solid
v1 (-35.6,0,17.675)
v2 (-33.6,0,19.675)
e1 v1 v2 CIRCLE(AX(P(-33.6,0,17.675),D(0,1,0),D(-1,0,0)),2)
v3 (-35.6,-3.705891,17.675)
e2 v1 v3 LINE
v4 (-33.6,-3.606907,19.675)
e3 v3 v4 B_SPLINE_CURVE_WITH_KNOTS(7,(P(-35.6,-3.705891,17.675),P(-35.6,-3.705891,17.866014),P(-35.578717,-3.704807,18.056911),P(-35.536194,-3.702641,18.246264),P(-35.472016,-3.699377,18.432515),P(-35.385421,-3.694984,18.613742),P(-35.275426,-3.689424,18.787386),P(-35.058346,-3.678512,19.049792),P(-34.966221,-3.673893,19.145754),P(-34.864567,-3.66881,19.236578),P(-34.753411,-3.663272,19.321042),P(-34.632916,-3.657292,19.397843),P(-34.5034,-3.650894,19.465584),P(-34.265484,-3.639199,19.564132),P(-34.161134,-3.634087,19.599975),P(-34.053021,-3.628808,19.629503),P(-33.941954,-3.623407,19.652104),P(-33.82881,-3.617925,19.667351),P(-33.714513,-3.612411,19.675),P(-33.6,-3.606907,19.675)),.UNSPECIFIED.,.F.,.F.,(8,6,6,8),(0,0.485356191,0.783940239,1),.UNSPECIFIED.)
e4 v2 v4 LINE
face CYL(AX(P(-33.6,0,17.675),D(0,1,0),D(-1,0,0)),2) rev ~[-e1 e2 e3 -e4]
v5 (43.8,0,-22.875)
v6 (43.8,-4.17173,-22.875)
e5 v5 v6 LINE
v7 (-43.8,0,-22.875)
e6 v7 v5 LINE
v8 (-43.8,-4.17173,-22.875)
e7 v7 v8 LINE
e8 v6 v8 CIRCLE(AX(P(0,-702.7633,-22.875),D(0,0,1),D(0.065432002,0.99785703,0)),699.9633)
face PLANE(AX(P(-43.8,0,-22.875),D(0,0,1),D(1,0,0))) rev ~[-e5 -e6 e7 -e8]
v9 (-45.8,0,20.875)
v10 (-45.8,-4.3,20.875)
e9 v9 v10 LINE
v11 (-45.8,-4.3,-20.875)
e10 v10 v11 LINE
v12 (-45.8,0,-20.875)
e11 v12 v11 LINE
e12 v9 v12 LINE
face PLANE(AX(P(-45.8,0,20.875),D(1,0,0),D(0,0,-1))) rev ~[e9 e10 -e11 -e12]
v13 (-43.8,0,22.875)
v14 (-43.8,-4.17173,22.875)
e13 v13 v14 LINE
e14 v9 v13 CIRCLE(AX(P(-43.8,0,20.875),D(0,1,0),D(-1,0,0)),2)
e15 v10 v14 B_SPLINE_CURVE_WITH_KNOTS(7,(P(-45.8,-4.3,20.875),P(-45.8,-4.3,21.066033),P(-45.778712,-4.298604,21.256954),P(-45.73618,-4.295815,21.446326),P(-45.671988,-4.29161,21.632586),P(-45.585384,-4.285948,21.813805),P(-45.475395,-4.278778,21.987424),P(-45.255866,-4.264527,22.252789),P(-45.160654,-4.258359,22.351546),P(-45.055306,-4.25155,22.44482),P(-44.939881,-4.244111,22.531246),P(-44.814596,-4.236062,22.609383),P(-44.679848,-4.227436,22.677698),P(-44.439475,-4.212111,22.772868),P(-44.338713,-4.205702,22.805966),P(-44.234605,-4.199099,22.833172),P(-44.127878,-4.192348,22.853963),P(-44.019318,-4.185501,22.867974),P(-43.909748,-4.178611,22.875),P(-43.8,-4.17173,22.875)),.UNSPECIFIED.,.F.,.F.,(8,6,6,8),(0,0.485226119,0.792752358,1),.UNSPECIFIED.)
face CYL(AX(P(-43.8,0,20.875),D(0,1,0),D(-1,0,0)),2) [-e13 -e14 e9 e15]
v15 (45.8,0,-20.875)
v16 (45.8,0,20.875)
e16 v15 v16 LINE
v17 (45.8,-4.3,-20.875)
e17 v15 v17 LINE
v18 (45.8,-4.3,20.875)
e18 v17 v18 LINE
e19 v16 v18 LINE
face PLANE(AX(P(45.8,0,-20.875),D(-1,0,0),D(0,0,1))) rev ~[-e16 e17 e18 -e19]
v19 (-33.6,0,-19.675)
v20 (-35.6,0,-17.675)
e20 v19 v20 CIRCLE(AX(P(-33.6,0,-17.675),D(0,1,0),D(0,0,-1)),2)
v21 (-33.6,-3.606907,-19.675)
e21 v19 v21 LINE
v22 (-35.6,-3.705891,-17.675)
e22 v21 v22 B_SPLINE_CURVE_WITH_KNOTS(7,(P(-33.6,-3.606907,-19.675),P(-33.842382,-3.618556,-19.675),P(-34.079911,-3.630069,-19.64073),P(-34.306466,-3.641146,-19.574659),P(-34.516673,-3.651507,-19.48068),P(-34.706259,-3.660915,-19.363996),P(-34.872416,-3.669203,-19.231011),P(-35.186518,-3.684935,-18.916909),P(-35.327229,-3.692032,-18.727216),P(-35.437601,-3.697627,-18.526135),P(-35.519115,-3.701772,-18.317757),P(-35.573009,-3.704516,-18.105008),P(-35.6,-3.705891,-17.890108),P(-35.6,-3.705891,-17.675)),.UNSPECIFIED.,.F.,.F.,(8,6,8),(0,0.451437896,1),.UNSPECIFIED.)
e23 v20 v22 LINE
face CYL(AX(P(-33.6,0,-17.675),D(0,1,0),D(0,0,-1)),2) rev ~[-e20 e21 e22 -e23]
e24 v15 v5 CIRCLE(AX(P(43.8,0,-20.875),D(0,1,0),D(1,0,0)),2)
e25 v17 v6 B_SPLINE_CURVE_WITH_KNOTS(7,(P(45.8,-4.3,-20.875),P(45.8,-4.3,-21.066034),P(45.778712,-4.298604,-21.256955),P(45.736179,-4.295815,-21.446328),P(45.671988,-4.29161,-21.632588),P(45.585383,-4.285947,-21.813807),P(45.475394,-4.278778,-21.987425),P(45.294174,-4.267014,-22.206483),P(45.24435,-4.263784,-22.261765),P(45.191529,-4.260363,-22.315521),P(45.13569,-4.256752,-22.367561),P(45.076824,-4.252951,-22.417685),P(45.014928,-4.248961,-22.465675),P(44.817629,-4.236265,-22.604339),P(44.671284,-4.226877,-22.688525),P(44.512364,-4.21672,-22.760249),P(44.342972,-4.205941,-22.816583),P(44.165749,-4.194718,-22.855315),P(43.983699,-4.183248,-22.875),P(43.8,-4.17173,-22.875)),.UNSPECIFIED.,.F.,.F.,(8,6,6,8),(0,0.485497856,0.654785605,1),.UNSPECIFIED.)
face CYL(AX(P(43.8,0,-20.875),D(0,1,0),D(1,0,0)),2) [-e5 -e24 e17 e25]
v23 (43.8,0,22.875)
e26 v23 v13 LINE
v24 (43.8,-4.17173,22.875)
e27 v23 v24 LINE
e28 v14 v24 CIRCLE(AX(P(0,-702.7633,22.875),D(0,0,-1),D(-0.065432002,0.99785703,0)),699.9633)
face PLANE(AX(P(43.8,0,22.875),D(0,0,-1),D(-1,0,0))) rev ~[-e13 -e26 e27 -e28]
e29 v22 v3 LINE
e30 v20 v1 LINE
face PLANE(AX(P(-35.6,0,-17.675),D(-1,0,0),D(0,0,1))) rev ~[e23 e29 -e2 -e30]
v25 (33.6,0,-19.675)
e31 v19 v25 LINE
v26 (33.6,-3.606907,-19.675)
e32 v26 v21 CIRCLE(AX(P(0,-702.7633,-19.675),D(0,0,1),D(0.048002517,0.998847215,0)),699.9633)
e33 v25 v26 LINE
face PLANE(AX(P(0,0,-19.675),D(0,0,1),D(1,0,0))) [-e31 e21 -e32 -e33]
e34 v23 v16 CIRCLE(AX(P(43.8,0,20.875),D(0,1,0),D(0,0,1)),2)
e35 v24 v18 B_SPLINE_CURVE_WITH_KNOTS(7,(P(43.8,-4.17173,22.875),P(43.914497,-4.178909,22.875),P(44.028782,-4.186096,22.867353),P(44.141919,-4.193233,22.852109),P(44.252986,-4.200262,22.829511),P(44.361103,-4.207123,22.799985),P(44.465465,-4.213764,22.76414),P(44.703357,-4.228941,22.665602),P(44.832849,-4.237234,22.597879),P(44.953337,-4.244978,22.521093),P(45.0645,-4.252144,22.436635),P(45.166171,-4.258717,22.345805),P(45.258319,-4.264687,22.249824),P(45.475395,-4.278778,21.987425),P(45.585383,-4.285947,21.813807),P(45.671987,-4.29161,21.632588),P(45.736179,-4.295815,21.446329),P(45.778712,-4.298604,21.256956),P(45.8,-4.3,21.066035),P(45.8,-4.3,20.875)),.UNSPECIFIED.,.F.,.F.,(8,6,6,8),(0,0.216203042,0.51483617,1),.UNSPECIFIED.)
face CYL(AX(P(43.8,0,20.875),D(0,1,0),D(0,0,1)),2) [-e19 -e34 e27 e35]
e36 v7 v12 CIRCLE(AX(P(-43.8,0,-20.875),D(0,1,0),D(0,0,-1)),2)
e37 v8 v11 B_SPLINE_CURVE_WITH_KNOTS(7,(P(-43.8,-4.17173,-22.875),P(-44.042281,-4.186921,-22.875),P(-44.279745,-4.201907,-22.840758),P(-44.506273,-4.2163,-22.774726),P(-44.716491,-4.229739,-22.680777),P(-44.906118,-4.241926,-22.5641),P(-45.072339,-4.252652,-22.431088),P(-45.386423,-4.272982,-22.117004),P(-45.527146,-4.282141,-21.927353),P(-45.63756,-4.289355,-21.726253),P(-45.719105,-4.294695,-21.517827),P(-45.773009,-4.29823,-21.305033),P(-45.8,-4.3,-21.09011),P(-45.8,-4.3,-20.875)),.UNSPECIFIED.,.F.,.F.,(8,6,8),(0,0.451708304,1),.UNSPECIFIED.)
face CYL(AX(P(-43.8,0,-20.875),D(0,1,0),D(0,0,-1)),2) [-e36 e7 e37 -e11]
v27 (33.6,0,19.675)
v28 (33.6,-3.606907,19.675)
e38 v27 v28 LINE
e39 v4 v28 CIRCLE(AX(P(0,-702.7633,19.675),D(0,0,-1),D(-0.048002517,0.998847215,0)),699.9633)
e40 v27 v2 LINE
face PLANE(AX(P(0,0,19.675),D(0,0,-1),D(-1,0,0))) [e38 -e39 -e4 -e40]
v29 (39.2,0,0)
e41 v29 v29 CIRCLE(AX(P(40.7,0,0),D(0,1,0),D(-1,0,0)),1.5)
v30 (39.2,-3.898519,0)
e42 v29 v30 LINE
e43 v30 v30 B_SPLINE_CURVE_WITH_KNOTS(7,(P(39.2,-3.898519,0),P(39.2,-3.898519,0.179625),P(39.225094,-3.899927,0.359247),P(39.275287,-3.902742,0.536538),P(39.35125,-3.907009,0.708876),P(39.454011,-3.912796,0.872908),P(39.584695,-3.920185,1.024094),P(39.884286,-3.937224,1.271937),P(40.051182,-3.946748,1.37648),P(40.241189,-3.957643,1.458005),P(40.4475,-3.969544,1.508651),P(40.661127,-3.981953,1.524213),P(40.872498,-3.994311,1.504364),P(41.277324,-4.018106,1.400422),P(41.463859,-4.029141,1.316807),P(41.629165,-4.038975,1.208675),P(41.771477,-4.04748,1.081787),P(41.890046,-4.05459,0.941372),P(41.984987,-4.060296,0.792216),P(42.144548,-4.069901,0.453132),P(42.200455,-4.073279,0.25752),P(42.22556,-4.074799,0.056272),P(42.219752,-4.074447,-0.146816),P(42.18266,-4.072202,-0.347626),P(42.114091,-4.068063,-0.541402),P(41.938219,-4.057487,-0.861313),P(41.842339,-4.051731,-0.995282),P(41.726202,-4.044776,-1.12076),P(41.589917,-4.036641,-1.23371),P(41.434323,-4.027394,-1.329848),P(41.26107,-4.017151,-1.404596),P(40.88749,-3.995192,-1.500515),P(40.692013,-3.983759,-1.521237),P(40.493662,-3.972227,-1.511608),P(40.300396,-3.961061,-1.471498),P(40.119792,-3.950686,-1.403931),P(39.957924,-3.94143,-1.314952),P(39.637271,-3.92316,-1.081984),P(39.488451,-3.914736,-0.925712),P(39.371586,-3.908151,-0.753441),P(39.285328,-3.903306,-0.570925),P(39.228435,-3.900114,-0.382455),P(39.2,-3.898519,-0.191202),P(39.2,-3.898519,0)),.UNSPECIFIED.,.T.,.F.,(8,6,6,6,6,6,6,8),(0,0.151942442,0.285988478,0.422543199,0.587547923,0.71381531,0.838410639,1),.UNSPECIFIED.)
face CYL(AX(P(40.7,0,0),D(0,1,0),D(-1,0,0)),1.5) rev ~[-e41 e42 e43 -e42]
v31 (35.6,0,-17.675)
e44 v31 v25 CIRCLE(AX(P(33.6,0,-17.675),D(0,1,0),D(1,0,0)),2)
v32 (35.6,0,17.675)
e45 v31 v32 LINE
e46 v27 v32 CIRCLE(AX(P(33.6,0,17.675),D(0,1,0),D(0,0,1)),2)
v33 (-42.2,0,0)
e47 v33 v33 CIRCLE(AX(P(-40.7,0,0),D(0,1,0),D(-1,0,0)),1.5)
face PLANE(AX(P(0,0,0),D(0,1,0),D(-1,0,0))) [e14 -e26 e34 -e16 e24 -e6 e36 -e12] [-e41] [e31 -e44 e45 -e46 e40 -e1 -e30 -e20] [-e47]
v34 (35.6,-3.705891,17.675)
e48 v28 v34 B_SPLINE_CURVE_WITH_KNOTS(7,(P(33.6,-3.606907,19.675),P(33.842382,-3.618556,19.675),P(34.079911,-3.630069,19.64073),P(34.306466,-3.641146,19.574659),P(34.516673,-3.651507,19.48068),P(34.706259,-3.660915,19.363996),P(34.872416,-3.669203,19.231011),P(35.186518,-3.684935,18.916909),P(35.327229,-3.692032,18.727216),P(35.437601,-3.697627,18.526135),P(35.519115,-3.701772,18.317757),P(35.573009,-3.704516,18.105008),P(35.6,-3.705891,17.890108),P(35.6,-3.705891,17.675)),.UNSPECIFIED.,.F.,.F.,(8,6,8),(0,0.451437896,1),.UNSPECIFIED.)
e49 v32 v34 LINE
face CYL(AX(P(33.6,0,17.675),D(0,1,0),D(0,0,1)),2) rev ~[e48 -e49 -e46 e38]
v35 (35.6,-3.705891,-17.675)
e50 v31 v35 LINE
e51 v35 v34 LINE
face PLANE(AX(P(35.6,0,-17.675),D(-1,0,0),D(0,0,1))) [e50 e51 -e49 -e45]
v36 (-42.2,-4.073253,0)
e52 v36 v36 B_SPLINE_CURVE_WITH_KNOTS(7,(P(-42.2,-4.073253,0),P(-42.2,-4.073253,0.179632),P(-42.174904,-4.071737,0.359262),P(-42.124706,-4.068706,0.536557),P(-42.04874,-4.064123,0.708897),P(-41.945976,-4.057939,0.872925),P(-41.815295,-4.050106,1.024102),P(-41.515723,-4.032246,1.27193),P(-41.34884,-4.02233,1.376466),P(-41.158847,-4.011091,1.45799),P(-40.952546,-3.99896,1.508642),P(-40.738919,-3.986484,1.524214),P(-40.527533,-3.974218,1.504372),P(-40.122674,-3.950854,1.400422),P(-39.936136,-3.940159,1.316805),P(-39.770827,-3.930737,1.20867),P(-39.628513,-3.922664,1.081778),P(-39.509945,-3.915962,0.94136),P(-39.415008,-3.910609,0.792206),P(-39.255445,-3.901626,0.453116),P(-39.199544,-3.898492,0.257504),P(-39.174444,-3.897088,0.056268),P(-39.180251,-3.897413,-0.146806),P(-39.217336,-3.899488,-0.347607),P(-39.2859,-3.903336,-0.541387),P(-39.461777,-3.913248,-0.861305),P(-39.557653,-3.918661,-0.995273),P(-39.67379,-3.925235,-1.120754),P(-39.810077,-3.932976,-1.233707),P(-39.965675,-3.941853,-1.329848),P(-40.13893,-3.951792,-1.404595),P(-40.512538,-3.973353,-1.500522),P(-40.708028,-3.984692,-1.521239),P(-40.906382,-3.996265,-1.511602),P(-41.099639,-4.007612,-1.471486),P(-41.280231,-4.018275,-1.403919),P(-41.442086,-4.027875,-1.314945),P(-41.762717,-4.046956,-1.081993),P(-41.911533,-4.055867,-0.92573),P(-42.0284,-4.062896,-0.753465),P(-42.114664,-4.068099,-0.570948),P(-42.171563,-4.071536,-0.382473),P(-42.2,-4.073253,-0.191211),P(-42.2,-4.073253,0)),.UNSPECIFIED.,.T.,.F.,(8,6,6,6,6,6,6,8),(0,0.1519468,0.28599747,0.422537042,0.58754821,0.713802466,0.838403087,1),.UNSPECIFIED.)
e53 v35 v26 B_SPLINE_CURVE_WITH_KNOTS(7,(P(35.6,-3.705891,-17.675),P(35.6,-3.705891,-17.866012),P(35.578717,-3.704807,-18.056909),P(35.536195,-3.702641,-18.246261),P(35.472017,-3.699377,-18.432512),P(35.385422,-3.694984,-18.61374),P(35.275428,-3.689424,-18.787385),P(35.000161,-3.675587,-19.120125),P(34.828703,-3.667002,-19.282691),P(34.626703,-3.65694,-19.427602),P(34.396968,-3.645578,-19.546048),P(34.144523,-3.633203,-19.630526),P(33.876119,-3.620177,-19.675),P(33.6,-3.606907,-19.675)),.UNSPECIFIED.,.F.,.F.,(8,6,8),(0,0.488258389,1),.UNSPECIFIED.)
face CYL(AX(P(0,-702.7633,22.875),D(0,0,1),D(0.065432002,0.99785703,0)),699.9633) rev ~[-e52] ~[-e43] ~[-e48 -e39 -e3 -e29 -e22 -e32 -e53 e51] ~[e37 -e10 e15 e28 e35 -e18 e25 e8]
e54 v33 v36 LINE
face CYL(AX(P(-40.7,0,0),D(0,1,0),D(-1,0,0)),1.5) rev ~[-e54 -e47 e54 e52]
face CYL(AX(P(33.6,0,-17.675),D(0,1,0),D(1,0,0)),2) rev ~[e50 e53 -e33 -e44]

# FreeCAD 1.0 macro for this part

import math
import FreeCAD as App
import Part
import Sketcher

V = App.Vector
Q = App.Units.Quantity

doc = App.newDocument("Part")
body = doc.addObject("PartDesign::Body", "Body")

# Sketch on XZ plane
sketch1 = body.newObject("Sketcher::SketchObject", "Sketch")
sketch1.AttachmentSupport = (doc.getObject("XZ_Plane"), [""])
sketch1.MapMode = "FlatFace"
sketch1.addGeometry([
    Part.LineSegment(V(-43.8, 22.875, 0), V(43.8, 22.875, 0)),  # 0
    Part.ArcOfCircle(Part.Circle(V(43.8, 20.875, 0), V(0, 0, 1), 2), math.radians(0), math.radians(90)),  # 1
    Part.LineSegment(V(45.8, 20.875, 0), V(45.8, -20.875, 0)),  # 2
    Part.ArcOfCircle(Part.Circle(V(43.8, -20.875, 0), V(0, 0, 1), 2), math.radians(-90), math.radians(0)),  # 3
    Part.LineSegment(V(43.8, -22.875, 0), V(-43.8, -22.875, 0)),  # 4
    Part.ArcOfCircle(Part.Circle(V(-43.8, -20.875, 0), V(0, 0, 1), 2), math.radians(180), math.radians(270)),  # 5
    Part.LineSegment(V(-45.8, -20.875, 0), V(-45.8, 20.875, 0)),  # 6
    Part.ArcOfCircle(Part.Circle(V(-43.8, 20.875, 0), V(0, 0, 1), 2), math.radians(90), math.radians(180)),  # 7
    Part.Circle(V(40.7, 0, 0), V(0, 0, 1), 1.5),  # 8
    Part.ArcOfCircle(Part.Circle(V(33.6, -17.675, 0), V(0, 0, 1), 2), math.radians(-90), math.radians(0)),  # 9
    Part.LineSegment(V(35.6, -17.675, 0), V(35.6, 17.675, 0)),  # 10
    Part.ArcOfCircle(Part.Circle(V(33.6, 17.675, 0), V(0, 0, 1), 2), math.radians(0), math.radians(90)),  # 11
    Part.LineSegment(V(33.6, 19.675, 0), V(-33.6, 19.675, 0)),  # 12
    Part.ArcOfCircle(Part.Circle(V(-33.6, 17.675, 0), V(0, 0, 1), 2), math.radians(90), math.radians(180)),  # 13
    Part.LineSegment(V(-35.6, 17.675, 0), V(-35.6, -17.675, 0)),  # 14
    Part.ArcOfCircle(Part.Circle(V(-33.6, -17.675, 0), V(0, 0, 1), 2), math.radians(180), math.radians(270)),  # 15
    Part.LineSegment(V(-33.6, -19.675, 0), V(33.6, -19.675, 0)),  # 16
    Part.Circle(V(-40.7, 0, 0), V(0, 0, 1), 1.5),  # 17
], False)
sketch1.addConstraint([
    Sketcher.Constraint("Tangent", 0, 2, 1, 2),
    Sketcher.Constraint("Tangent", 1, 1, 2, 1),
    Sketcher.Constraint("Tangent", 2, 2, 3, 2),
    Sketcher.Constraint("Tangent", 3, 1, 4, 1),
    Sketcher.Constraint("Tangent", 4, 2, 5, 2),
    Sketcher.Constraint("Tangent", 5, 1, 6, 1),
    Sketcher.Constraint("Tangent", 6, 2, 7, 2),
    Sketcher.Constraint("Tangent", 7, 1, 0, 1),
    Sketcher.Constraint("Tangent", 9, 2, 10, 1),
    Sketcher.Constraint("Tangent", 10, 2, 11, 1),
    Sketcher.Constraint("Tangent", 11, 2, 12, 1),
    Sketcher.Constraint("Tangent", 12, 2, 13, 1),
    Sketcher.Constraint("Tangent", 13, 2, 14, 1),
    Sketcher.Constraint("Tangent", 14, 2, 15, 1),
    Sketcher.Constraint("Tangent", 15, 2, 16, 1),
    Sketcher.Constraint("Tangent", 16, 2, 9, 1),
    Sketcher.Constraint("Horizontal", 0),
    Sketcher.Constraint("Vertical", 2),
    Sketcher.Constraint("Horizontal", 4),
    Sketcher.Constraint("Vertical", 6),
    Sketcher.Constraint("Vertical", 10),
    Sketcher.Constraint("Horizontal", 12),
    Sketcher.Constraint("Vertical", 14),
    Sketcher.Constraint("Horizontal", 16),
    Sketcher.Constraint("Equal", 1, 3),
    Sketcher.Constraint("Equal", 3, 5),
    Sketcher.Constraint("Equal", 5, 7),
    Sketcher.Constraint("Equal", 7, 9),
    Sketcher.Constraint("Equal", 9, 11),
    Sketcher.Constraint("Equal", 11, 13),
    Sketcher.Constraint("Equal", 13, 15),
    Sketcher.Constraint("Equal", 8, 17),
    Sketcher.Constraint("Symmetric", 1, 3, 5, 3, -1, 1),
    Sketcher.Constraint("Symmetric", 9, 3, 13, 3, -1, 1),
    Sketcher.Constraint("Symmetric", 8, 3, 17, 3, -1, 1),
    Sketcher.Constraint("PointOnObject", 8, 3, -1),
    Sketcher.Constraint("Diameter", 8, Q("3 mm")),
    Sketcher.Constraint("Radius", 1, Q("2 mm")),
    Sketcher.Constraint("DistanceX", 0, 1, 0, 2, Q("87.6 mm")),
    Sketcher.Constraint("DistanceX", 12, 2, 12, 1, Q("67.2 mm")),
    Sketcher.Constraint("DistanceY", 2, 2, 2, 1, Q("41.75 mm")),
    Sketcher.Constraint("DistanceY", 10, 1, 10, 2, Q("35.35 mm")),
    Sketcher.Constraint("DistanceX", -1, 1, 8, 3, Q("40.7 mm")),
])
pad1 = body.newObject("PartDesign::Pad", "Pad")
pad1.Profile = sketch1
pad1.Length = 4.3

# Sketch on XY plane
sketch2 = body.newObject("Sketcher::SketchObject", "Sketch001")
sketch2.AttachmentSupport = (doc.getObject("XY_Plane"), [""])
sketch2.MapMode = "FlatFace"
sketch2.AttachmentOffset = App.Placement(V(0, 0, 22.875), App.Rotation())
sketch2.addGeometry([
    Part.ArcOfCircle(Part.Circle(V(0, -702.7633, 0), V(0, 0, 1), 699.9633), math.radians(86.248342), math.radians(93.751658)),
    Part.LineSegment(V(-45.8, -4.3, 0), V(45.8, -4.3, 0)),
], False)
sketch2.addConstraint([
    Sketcher.Constraint("Coincident", 0, 1, 1, 2),
    Sketcher.Constraint("Coincident", 1, 1, 0, 2),
    Sketcher.Constraint("Horizontal", 1),
    Sketcher.Constraint("PointOnObject", 0, 3, -2),
    Sketcher.Constraint("DistanceX", 1, 1, 1, 2, Q("91.6 mm")),
    Sketcher.Constraint("DistanceY", 0, 1, -1, 1, Q("4.3 mm")),
    Sketcher.Constraint("Radius", 0, Q("699.9633 mm")),
])
pocket1 = body.newObject("PartDesign::Pocket", "Pocket")
pocket1.Profile = sketch2
pocket1.Length = 45.75

doc.recompute()
